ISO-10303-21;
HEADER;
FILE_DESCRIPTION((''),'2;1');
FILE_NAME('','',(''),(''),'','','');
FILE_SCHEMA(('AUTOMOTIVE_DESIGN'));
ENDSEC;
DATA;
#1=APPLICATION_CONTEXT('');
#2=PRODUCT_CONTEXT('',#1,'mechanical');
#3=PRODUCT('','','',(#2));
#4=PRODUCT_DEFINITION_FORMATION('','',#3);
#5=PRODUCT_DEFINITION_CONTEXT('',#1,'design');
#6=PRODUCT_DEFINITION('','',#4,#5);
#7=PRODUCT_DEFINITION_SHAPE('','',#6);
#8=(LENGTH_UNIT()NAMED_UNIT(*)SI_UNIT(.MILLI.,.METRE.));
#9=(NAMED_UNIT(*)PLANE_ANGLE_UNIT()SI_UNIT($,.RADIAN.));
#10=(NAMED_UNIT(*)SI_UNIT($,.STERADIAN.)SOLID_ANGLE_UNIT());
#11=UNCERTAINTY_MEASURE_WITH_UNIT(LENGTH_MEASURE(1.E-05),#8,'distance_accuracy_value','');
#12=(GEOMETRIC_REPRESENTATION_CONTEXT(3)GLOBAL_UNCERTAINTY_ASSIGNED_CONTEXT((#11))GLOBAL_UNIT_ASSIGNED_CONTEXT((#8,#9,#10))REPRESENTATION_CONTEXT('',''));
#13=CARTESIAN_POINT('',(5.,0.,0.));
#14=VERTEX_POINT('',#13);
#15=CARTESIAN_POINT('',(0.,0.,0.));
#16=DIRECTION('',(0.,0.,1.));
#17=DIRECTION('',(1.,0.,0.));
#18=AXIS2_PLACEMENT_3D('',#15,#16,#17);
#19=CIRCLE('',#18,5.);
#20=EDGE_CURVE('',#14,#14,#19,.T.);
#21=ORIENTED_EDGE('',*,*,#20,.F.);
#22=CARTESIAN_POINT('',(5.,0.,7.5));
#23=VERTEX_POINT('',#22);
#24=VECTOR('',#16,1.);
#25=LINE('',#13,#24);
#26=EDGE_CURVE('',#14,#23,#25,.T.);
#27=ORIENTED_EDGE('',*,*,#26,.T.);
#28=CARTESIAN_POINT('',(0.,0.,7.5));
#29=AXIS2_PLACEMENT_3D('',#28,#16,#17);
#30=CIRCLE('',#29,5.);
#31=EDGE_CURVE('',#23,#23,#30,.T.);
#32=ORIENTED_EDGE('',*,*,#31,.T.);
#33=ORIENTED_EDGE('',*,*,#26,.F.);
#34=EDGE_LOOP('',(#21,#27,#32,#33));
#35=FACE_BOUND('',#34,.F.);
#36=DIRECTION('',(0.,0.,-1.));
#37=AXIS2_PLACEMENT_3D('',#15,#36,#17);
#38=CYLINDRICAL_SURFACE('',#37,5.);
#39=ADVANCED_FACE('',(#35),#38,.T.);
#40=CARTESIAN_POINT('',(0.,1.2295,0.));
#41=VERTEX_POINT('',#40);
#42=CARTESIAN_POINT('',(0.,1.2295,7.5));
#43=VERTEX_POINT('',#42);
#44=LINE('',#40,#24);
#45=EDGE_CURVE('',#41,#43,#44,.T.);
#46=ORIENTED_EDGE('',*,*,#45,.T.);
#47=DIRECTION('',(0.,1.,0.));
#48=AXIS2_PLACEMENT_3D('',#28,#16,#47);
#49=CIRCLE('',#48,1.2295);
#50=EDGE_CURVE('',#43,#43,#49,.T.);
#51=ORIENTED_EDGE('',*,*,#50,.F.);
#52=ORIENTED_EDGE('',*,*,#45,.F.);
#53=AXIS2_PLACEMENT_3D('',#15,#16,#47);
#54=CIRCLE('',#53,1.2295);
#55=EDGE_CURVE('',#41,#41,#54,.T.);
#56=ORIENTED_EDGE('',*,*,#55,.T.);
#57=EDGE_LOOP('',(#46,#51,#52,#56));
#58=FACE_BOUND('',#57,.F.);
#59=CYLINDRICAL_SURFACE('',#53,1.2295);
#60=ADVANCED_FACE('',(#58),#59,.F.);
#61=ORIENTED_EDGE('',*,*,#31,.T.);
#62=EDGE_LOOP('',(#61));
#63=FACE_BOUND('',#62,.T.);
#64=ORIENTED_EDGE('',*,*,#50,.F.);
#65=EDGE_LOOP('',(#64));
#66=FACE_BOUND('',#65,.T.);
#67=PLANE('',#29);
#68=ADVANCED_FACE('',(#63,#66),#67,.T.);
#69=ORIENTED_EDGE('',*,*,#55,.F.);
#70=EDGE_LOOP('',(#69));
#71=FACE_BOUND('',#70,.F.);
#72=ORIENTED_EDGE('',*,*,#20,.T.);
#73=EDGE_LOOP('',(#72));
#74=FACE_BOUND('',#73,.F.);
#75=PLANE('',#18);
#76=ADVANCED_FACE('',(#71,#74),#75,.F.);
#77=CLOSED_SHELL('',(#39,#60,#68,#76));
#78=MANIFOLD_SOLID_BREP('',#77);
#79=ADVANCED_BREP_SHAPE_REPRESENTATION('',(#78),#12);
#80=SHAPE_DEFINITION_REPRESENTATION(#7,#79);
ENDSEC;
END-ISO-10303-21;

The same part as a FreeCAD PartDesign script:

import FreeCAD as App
import Part
import Sketcher

V = App.Vector
Q = App.Units.Quantity

doc = App.newDocument("Part")
body = doc.addObject("PartDesign::Body", "Body")

# Sketch on XY plane
sketch1 = body.newObject("Sketcher::SketchObject", "Sketch")
sketch1.AttachmentSupport = (doc.getObject("XY_Plane"), [""])
sketch1.MapMode = "FlatFace"
sketch1.addGeometry(Part.Circle(V(0, 0, 0), V(0, 0, 1), 5), False)
sketch1.addConstraint(Sketcher.Constraint("Coincident", 0, 3, -1, 1))
sketch1.addConstraint(Sketcher.Constraint("Diameter", 0, Q("10 mm")))
pad1 = body.newObject("PartDesign::Pad", "Pad")
pad1.Profile = sketch1
pad1.Length = 7.5

# Sketch on XY plane
sketch2 = body.newObject("Sketcher::SketchObject", "Sketch001")
sketch2.AttachmentSupport = (doc.getObject("XY_Plane"), [""])
sketch2.MapMode = "FlatFace"
sketch2.addGeometry(Part.Circle(V(0, 0, 0), V(0, 0, 1), 1.2), False)
sketch2.addConstraint(Sketcher.Constraint("Coincident", 0, 3, -1, 1))
sketch2.addConstraint(Sketcher.Constraint("Diameter", 0, Q("2.459 mm")))
doc.recompute()
hole = body.newObject("PartDesign::Hole", "Hole")
hole.Profile = sketch2
hole.ThreadType = "None"
hole.Diameter = 2.459
hole.DepthType = "Dimension"
hole.Depth = 10
hole.DrillPoint = "Flat"
hole.Reversed = True

doc.recompute()
